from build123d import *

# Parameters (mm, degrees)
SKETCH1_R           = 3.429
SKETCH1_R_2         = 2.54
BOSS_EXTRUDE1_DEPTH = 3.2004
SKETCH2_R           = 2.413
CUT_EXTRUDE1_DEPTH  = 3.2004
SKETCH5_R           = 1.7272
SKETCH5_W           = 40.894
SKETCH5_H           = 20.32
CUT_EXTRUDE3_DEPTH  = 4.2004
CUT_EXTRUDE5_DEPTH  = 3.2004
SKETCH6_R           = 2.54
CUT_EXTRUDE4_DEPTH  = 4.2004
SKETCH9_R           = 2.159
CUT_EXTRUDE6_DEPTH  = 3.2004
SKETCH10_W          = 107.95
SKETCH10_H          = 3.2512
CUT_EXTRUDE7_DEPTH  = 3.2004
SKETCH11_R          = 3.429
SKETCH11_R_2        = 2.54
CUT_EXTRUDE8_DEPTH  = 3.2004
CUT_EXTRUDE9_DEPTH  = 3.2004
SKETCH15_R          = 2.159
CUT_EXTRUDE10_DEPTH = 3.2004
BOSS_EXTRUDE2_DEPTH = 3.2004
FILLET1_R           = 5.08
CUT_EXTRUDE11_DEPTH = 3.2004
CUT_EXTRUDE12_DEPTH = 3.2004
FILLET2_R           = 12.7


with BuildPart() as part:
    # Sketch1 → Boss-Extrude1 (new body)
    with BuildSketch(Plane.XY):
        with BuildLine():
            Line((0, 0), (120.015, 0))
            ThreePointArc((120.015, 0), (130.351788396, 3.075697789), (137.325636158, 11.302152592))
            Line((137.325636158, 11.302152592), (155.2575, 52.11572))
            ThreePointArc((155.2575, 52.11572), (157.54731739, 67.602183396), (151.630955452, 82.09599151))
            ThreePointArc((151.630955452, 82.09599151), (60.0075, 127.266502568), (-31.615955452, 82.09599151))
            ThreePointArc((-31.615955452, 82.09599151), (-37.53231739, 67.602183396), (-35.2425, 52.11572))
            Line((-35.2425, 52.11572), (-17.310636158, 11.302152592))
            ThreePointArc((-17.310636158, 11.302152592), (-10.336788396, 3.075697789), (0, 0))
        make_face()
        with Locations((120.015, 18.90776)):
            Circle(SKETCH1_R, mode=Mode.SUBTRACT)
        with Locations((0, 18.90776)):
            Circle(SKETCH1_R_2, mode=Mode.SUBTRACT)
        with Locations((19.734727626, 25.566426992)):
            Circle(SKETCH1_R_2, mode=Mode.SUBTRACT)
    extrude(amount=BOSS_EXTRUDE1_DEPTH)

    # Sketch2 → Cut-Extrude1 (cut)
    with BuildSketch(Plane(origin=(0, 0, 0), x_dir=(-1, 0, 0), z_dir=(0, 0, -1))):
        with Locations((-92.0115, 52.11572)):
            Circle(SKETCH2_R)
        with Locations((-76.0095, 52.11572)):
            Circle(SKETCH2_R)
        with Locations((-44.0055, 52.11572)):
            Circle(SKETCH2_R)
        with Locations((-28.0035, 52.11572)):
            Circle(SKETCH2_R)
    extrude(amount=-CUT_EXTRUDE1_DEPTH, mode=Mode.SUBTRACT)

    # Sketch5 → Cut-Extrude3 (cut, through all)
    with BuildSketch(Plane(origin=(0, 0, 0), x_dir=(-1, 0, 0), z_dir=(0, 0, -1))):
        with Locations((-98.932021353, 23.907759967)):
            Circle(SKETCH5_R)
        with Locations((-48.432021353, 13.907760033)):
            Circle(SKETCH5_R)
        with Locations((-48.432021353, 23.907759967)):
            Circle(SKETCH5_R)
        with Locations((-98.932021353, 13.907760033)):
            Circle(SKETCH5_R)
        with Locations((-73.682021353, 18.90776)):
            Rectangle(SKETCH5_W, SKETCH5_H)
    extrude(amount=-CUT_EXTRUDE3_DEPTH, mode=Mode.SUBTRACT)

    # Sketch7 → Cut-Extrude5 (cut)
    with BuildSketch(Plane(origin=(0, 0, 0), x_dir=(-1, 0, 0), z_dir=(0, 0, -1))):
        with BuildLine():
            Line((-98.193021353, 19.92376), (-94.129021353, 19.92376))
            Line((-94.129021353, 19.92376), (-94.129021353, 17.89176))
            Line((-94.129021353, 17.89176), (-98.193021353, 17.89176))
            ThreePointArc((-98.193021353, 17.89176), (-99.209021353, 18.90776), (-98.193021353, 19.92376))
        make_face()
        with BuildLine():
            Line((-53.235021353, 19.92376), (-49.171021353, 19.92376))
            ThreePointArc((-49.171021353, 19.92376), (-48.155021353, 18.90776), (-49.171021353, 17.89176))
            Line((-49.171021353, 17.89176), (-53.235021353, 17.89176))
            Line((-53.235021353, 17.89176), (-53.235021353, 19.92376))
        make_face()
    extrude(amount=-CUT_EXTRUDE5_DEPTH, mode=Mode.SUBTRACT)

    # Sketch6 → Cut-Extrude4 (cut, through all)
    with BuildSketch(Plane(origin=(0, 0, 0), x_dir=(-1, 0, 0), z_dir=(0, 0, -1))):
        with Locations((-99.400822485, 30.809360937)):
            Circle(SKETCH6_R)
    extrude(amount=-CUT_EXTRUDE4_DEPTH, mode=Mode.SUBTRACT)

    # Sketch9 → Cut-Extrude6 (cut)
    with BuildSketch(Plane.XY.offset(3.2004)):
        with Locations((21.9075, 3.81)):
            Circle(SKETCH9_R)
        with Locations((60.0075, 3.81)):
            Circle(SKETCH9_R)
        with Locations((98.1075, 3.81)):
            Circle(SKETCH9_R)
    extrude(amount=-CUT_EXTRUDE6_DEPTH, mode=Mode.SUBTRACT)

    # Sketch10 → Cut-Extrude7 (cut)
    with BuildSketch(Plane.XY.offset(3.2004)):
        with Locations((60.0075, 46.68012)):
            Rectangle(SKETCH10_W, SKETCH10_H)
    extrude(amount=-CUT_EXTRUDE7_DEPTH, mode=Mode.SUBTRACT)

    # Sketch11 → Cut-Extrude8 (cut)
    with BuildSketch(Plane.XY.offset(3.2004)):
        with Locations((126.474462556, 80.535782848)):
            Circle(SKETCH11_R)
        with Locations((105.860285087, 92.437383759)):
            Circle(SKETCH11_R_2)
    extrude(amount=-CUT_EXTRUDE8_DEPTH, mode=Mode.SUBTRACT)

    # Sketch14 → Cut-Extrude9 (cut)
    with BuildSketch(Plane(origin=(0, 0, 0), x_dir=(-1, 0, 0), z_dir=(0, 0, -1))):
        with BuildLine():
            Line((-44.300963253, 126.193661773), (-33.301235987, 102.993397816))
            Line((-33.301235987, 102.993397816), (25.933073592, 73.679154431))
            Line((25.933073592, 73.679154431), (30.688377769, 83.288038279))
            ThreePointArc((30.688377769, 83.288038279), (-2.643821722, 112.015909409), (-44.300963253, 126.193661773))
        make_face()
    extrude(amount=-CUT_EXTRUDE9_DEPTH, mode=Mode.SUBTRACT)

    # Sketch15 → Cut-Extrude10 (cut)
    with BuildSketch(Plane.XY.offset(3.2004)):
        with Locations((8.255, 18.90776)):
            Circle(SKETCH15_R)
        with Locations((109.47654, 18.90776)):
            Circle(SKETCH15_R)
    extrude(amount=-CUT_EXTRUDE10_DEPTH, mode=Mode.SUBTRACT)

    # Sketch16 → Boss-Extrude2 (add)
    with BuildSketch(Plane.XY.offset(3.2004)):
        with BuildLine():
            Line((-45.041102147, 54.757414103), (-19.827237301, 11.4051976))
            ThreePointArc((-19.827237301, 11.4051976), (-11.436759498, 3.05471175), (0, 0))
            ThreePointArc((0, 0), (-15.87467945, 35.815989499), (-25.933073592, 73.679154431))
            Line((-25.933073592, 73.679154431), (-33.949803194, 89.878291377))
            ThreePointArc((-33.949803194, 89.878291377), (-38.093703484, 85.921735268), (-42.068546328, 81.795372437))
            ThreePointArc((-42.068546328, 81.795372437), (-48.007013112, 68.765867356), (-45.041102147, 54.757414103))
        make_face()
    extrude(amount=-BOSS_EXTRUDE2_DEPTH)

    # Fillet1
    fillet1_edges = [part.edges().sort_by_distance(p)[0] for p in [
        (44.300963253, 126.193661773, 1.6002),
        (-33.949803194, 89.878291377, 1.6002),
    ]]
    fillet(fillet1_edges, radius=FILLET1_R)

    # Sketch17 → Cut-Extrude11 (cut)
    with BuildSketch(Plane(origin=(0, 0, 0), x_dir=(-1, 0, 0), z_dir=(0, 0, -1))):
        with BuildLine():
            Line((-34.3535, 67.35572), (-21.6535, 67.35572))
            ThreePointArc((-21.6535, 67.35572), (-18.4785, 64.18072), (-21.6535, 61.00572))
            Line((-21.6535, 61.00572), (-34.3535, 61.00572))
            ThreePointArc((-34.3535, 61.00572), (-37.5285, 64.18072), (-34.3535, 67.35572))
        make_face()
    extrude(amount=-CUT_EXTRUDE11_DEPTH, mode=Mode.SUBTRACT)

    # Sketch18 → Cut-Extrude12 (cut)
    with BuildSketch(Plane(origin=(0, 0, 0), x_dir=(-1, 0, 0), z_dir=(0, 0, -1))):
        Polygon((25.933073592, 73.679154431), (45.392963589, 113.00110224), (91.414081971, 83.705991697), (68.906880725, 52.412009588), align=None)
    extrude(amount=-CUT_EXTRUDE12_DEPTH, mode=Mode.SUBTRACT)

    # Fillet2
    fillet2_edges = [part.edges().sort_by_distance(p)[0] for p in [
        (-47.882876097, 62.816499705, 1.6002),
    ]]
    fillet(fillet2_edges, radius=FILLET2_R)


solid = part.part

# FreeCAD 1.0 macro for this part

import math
import FreeCAD as App
import Part
import Sketcher
Q = App.Units.Quantity


def edges_at(feature, points):
    """Names of the edges that pass closest to the given points."""
    edges = feature.Shape.Edges
    near = lambda p: min(range(len(edges)), key=lambda i: edges[i].distToShape(Part.Vertex(*p))[0])
    return sorted({f"Edge{near(p) + 1}" for p in points})


def add_polygon(sketch, points):
    """Adds a closed chain of lines whose ends are joined by coincident constraints."""
    first, n = sketch.GeometryCount, len(points)
    for a, b in zip(points, points[1:] + points[:1]):
        sketch.addGeometry(Part.LineSegment(App.Vector(*a, 0), App.Vector(*b, 0)), False)
    for i in range(n):
        sketch.addConstraint(Sketcher.Constraint("Coincident", first + i, 2, first + (i + 1) % n, 1))

doc = App.newDocument("Part")
body = doc.addObject("PartDesign::Body", "Body")

sketch1 = doc.addObject("Sketcher::SketchObject", "Sketch")
body.addObject(sketch1)
sketch1.AttachmentSupport = (doc.XY_Plane, [""])
sketch1.MapMode = "FlatFace"
sketch1.addGeometry([
    Part.LineSegment(App.Vector(0, 0, 0), App.Vector(120, 0, 0)),
    Part.ArcOfCircle(Part.Circle(App.Vector(120, 18.9, 0), App.Vector(0, 0, 1), 18.9), math.radians(-90), math.radians(-24)),
    Part.LineSegment(App.Vector(137.3, 11.3, 0), App.Vector(155.3, 52.1, 0)),
    Part.ArcOfCircle(Part.Circle(App.Vector(128.1, 64, 0), App.Vector(0, 0, 1), 29.6), math.radians(-24), math.radians(38)),
    Part.ArcOfCircle(Part.Circle(App.Vector(60, 11.8, 0), App.Vector(0, 0, 1), 115.5), math.radians(38), math.radians(142)),
    Part.ArcOfCircle(Part.Circle(App.Vector(-8.1, 64, 0), App.Vector(0, 0, 1), 29.6), math.radians(142), math.radians(204)),
    Part.LineSegment(App.Vector(-35.2, 52.1, 0), App.Vector(-17.3, 11.3, 0)),
    Part.ArcOfCircle(Part.Circle(App.Vector(0, 18.9, 0), App.Vector(0, 0, 1), 18.9), math.radians(-156), math.radians(-90)),
    Part.Circle(App.Vector(0, 18.9, 0), App.Vector(0, 0, 1), 2.5),
    Part.Circle(App.Vector(120, 18.9, 0), App.Vector(0, 0, 1), 3.4),
    Part.Circle(App.Vector(19.7, 25.6, 0), App.Vector(0, 0, 1), 2.5),
], False)
sketch1.addConstraint([
    Sketcher.Constraint("Tangent", 0, 2, 1, 1),
    Sketcher.Constraint("Tangent", 1, 2, 2, 1),
    Sketcher.Constraint("Tangent", 2, 2, 3, 1),
    Sketcher.Constraint("Tangent", 3, 2, 4, 1),
    Sketcher.Constraint("Tangent", 4, 2, 5, 1),
    Sketcher.Constraint("Tangent", 5, 2, 6, 1),
    Sketcher.Constraint("Tangent", 6, 2, 7, 1),
    Sketcher.Constraint("Tangent", 7, 2, 0, 1),
    Sketcher.Constraint("Horizontal", 0),
    Sketcher.Constraint("Coincident", 7, 2, -1, 1),
    Sketcher.Constraint("Coincident", 8, 3, 7, 3),
    Sketcher.Constraint("Coincident", 9, 3, 1, 3),
    Sketcher.Constraint("Equal", 3, 5),
    Sketcher.Constraint("Equal", 1, 7),
    Sketcher.Constraint("Equal", 8, 10),
    Sketcher.Constraint("Horizontal", 3, 3, 5, 3),
    Sketcher.Constraint("Horizontal", 2, 2, 5, 2),
    Sketcher.Constraint("Diameter", 8, Q("0.2 in")),
    Sketcher.Constraint("Diameter", 9, Q("0.27 in")),
    Sketcher.Constraint("Radius", 1, Q("0.7444 in")),
    Sketcher.Constraint("DistanceX", 0, 1, 0, 2, Q("4.725 in")),
    Sketcher.Constraint("Radius", 3, 29.648419),
    Sketcher.Constraint("Radius", 4, 115.509349),
    Sketcher.Constraint("DistanceX", -1, 1, 2, 2, Q("6.1125 in")),
    Sketcher.Constraint("DistanceY", -1, 1, 2, 2, Q("2.0518 in")),
    Sketcher.Constraint("DistanceY", 10, 3, 5, 3, 38.475308),
    Sketcher.Constraint("DistanceX", -1, 1, 10, 3, 19.734728),
])
pad1 = doc.addObject("PartDesign::Pad", "Pad")
body.addObject(pad1)
pad1.Profile = sketch1
pad1.Length = Q("0.126 in")

sketch2 = doc.addObject("Sketcher::SketchObject", "Sketch001")
body.addObject(sketch2)
sketch2.AttachmentSupport = (doc.XY_Plane, [""])
sketch2.MapMode = "FlatFace"
sketch2.addGeometry([
    Part.Circle(App.Vector(92, 52.1, 0), App.Vector(0, 0, 1), 2.4),
    Part.Circle(App.Vector(76, 52.1, 0), App.Vector(0, 0, 1), 2.4),
    Part.Circle(App.Vector(44, 52.1, 0), App.Vector(0, 0, 1), 2.4),
    Part.Circle(App.Vector(28, 52.1, 0), App.Vector(0, 0, 1), 2.4),
], False)
sketch2.addConstraint([
    Sketcher.Constraint("Equal", 0, 1),
    Sketcher.Constraint("Equal", 1, 2),
    Sketcher.Constraint("Equal", 2, 3),
    Sketcher.Constraint("Horizontal", 0, 3, 1, 3),
    Sketcher.Constraint("Horizontal", 1, 3, 2, 3),
    Sketcher.Constraint("Horizontal", 2, 3, 3, 3),
    Sketcher.Constraint("Diameter", 0, Q("0.19 in")),
    Sketcher.Constraint("DistanceX", 1, 3, 0, 3, Q("0.63 in")),
    Sketcher.Constraint("DistanceX", 2, 3, 1, 3, Q("1.26 in")),
    Sketcher.Constraint("DistanceX", 3, 3, 2, 3, Q("0.63 in")),
    Sketcher.Constraint("DistanceX", -1, 1, 0, 3, Q("3.6225 in")),
    Sketcher.Constraint("DistanceY", -1, 1, 0, 3, Q("2.0518 in")),
])
pocket1 = doc.addObject("PartDesign::Pocket", "Pocket")
body.addObject(pocket1)
pocket1.Profile = sketch2
pocket1.Length = Q("0.126 in")
pocket1.Reversed = True

sketch3 = doc.addObject("Sketcher::SketchObject", "Sketch002")
body.addObject(sketch3)
sketch3.AttachmentSupport = (doc.XY_Plane, [""])
sketch3.MapMode = "FlatFace"
sketch3.addGeometry(Part.Circle(App.Vector(98.9, 23.9, 0), App.Vector(0, 0, 1), 1.7), False)
sketch3.addGeometry(Part.Circle(App.Vector(48.4, 13.9, 0), App.Vector(0, 0, 1), 1.7), False)
sketch3.addGeometry(Part.Circle(App.Vector(48.4, 23.9, 0), App.Vector(0, 0, 1), 1.7), False)
sketch3.addGeometry(Part.Circle(App.Vector(98.9, 13.9, 0), App.Vector(0, 0, 1), 1.7), False)
add_polygon(sketch3, [(94.1, 29.1), (94.1, 8.7), (53.2, 8.7), (53.2, 29.1)])
sketch3.addConstraint([
    Sketcher.Constraint("Vertical", 4),
    Sketcher.Constraint("Horizontal", 5),
    Sketcher.Constraint("Vertical", 6),
    Sketcher.Constraint("Horizontal", 7),
    Sketcher.Constraint("Equal", 0, 1),
    Sketcher.Constraint("Equal", 1, 2),
    Sketcher.Constraint("Equal", 2, 3),
    Sketcher.Constraint("Horizontal", 0, 3, 2, 3),
    Sketcher.Constraint("Horizontal", 1, 3, 3, 3),
    Sketcher.Constraint("Vertical", 1, 3, 2, 3),
    Sketcher.Constraint("Vertical", 0, 3, 3, 3),
    Sketcher.Constraint("Diameter", 0, Q("0.136 in")),
    Sketcher.Constraint("DistanceY", 4, 2, 4, 1, Q("0.8 in")),
    Sketcher.Constraint("DistanceX", 5, 2, 5, 1, Q("1.61 in")),
    Sketcher.Constraint("DistanceY", -1, 1, 4, 2, Q("0.3444 in")),
    Sketcher.Constraint("DistanceX", 1, 3, 0, 3, 50.5),
    Sketcher.Constraint("DistanceY", 1, 3, 0, 3, 10.0),
    Sketcher.Constraint("DistanceX", 4, 2, 3, 3, 4.803),
    Sketcher.Constraint("DistanceY", 4, 2, 3, 3, 5.16),
    Sketcher.Constraint("DistanceX", -1, 1, 0, 3, 98.932021),
])
pocket2 = doc.addObject("PartDesign::Pocket", "Pocket001")
body.addObject(pocket2)
pocket2.Profile = sketch3
pocket2.Type = "ThroughAll"
pocket2.Reversed = True

sketch4 = doc.addObject("Sketcher::SketchObject", "Sketch003")
body.addObject(sketch4)
sketch4.AttachmentSupport = (doc.XY_Plane, [""])
sketch4.MapMode = "FlatFace"
sketch4.addGeometry([
    Part.LineSegment(App.Vector(94.1, 19.9, 0), App.Vector(98.2, 19.9, 0)),
    Part.ArcOfCircle(Part.Circle(App.Vector(98.2, 18.9, 0), App.Vector(0, 0, 1), 1), math.radians(-90), math.radians(90)),
    Part.LineSegment(App.Vector(98.2, 17.9, 0), App.Vector(94.1, 17.9, 0)),
    Part.LineSegment(App.Vector(94.1, 17.9, 0), App.Vector(94.1, 19.9, 0)),
    Part.LineSegment(App.Vector(49.2, 19.9, 0), App.Vector(53.2, 19.9, 0)),
    Part.LineSegment(App.Vector(53.2, 19.9, 0), App.Vector(53.2, 17.9, 0)),
    Part.LineSegment(App.Vector(53.2, 17.9, 0), App.Vector(49.2, 17.9, 0)),
    Part.ArcOfCircle(Part.Circle(App.Vector(49.2, 18.9, 0), App.Vector(0, 0, 1), 1), math.radians(90), math.radians(270)),
], False)
sketch4.addConstraint([
    Sketcher.Constraint("Tangent", 0, 2, 1, 2),
    Sketcher.Constraint("Tangent", 1, 1, 2, 1),
    Sketcher.Constraint("Coincident", 2, 2, 3, 1),
    Sketcher.Constraint("Coincident", 3, 2, 0, 1),
    Sketcher.Constraint("Coincident", 4, 2, 5, 1),
    Sketcher.Constraint("Coincident", 5, 2, 6, 1),
    Sketcher.Constraint("Tangent", 6, 2, 7, 2),
    Sketcher.Constraint("Tangent", 7, 1, 4, 1),
    Sketcher.Constraint("Horizontal", 0),
    Sketcher.Constraint("Horizontal", 2),
    Sketcher.Constraint("Vertical", 3),
    Sketcher.Constraint("Horizontal", 4),
    Sketcher.Constraint("Vertical", 5),
    Sketcher.Constraint("Horizontal", 6),
    Sketcher.Constraint("Equal", 1, 7),
    Sketcher.Constraint("Horizontal", 1, 3, 7, 3),
    Sketcher.Constraint("Equal", 2, 4),
    Sketcher.Constraint("Radius", 1, Q("0.04 in")),
    Sketcher.Constraint("DistanceX", 0, 1, 0, 2, Q("0.16 in")),
    Sketcher.Constraint("DistanceX", 7, 3, 1, 3, Q("1.93 in")),
    Sketcher.Constraint("DistanceY", -1, 1, 1, 3, Q("0.7444 in")),
    Sketcher.Constraint("DistanceX", -1, 1, 1, 3, 98.193021),
])
pocket3 = doc.addObject("PartDesign::Pocket", "Pocket002")
body.addObject(pocket3)
pocket3.Profile = sketch4
pocket3.Length = Q("0.126 in")
pocket3.Reversed = True

sketch5 = doc.addObject("Sketcher::SketchObject", "Sketch004")
body.addObject(sketch5)
sketch5.AttachmentSupport = (doc.XY_Plane, [""])
sketch5.MapMode = "FlatFace"
sketch5.addGeometry(Part.Circle(App.Vector(99.4, 30.8, 0), App.Vector(0, 0, 1), 2.5), False)
sketch5.addConstraint([
    Sketcher.Constraint("Diameter", 0, Q("0.2 in")),
    Sketcher.Constraint("DistanceY", -1, 1, 0, 3, 30.809361),
    Sketcher.Constraint("DistanceX", -1, 1, 0, 3, 99.400822),
])
pocket4 = doc.addObject("PartDesign::Pocket", "Pocket003")
body.addObject(pocket4)
pocket4.Profile = sketch5
pocket4.Type = "ThroughAll"
pocket4.Reversed = True

sketch6 = doc.addObject("Sketcher::SketchObject", "Sketch005")
body.addObject(sketch6)
sketch6.AttachmentSupport = (doc.XY_Plane, [""])
sketch6.MapMode = "FlatFace"
sketch6.AttachmentOffset = App.Placement(App.Vector(0, 0, 0.126 * 25.4), App.Rotation())
sketch6.addGeometry([
    Part.Circle(App.Vector(21.9, 3.8, 0), App.Vector(0, 0, 1), 2.2),
    Part.Circle(App.Vector(60, 3.8, 0), App.Vector(0, 0, 1), 2.2),
    Part.Circle(App.Vector(98.1, 3.8, 0), App.Vector(0, 0, 1), 2.2),
], False)
sketch6.addConstraint([
    Sketcher.Constraint("Equal", 0, 1),
    Sketcher.Constraint("Equal", 1, 2),
    Sketcher.Constraint("Horizontal", 0, 3, 1, 3),
    Sketcher.Constraint("Horizontal", 1, 3, 2, 3),
    Sketcher.Constraint("Diameter", 0, Q("0.17 in")),
    Sketcher.Constraint("DistanceX", 0, 3, 2, 3, Q("3 in")),
    Sketcher.Constraint("DistanceX", 0, 3, 1, 3, Q("1.5 in")),
    Sketcher.Constraint("DistanceY", -1, 1, 0, 3, Q("0.15 in")),
    Sketcher.Constraint("DistanceX", -1, 1, 0, 3, Q("0.8625 in")),
])
pocket5 = doc.addObject("PartDesign::Pocket", "Pocket004")
body.addObject(pocket5)
pocket5.Profile = sketch6
pocket5.Length = Q("0.126 in")

sketch7 = doc.addObject("Sketcher::SketchObject", "Sketch006")
body.addObject(sketch7)
sketch7.AttachmentSupport = (doc.XY_Plane, [""])
sketch7.MapMode = "FlatFace"
sketch7.AttachmentOffset = App.Placement(App.Vector(0, 0, 0.126 * 25.4), App.Rotation())
add_polygon(sketch7, [(6, 48.3), (6, 45.1), (114, 45.1), (114, 48.3)])
sketch7.addConstraint([
    Sketcher.Constraint("Vertical", 0),
    Sketcher.Constraint("Horizontal", 1),
    Sketcher.Constraint("Vertical", 2),
    Sketcher.Constraint("Horizontal", 3),
    Sketcher.Constraint("DistanceX", 1, 1, 1, 2, Q("4.25 in")),
    Sketcher.Constraint("DistanceY", 0, 2, 0, 1, Q("0.128 in")),
    Sketcher.Constraint("DistanceX", -1, 1, 0, 2, Q("0.2375 in")),
    Sketcher.Constraint("DistanceY", -1, 1, 0, 2, Q("1.7738 in")),
])
pocket6 = doc.addObject("PartDesign::Pocket", "Pocket005")
body.addObject(pocket6)
pocket6.Profile = sketch7
pocket6.Length = Q("0.126 in")

sketch8 = doc.addObject("Sketcher::SketchObject", "Sketch007")
body.addObject(sketch8)
sketch8.AttachmentSupport = (doc.XY_Plane, [""])
sketch8.MapMode = "FlatFace"
sketch8.AttachmentOffset = App.Placement(App.Vector(0, 0, 0.126 * 25.4), App.Rotation())
sketch8.addGeometry([
    Part.Circle(App.Vector(126.5, 80.5, 0), App.Vector(0, 0, 1), 3.4),
    Part.Circle(App.Vector(105.9, 92.4, 0), App.Vector(0, 0, 1), 2.5),
], False)
sketch8.addConstraint([
    Sketcher.Constraint("Diameter", 1, Q("0.2 in")),
    Sketcher.Constraint("Diameter", 0, Q("0.27 in")),
    Sketcher.Constraint("DistanceY", -1, 1, 0, 3, Q("3.1707001 in")),
    Sketcher.Constraint("DistanceY", 0, 3, 1, 3, 11.901601),
    Sketcher.Constraint("DistanceX", -1, 1, 0, 3, 126.474463),
    Sketcher.Constraint("DistanceX", -1, 1, 1, 3, 105.860285),
])
pocket7 = doc.addObject("PartDesign::Pocket", "Pocket006")
body.addObject(pocket7)
pocket7.Profile = sketch8
pocket7.Length = Q("0.126 in")

sketch9 = doc.addObject("Sketcher::SketchObject", "Sketch008")
body.addObject(sketch9)
sketch9.AttachmentSupport = (doc.XY_Plane, [""])
sketch9.MapMode = "FlatFace"
sketch9.addGeometry([
    Part.LineSegment(App.Vector(44, 126, 0), App.Vector(33, 103, 0)),
    Part.LineSegment(App.Vector(33, 103, 0), App.Vector(-26, 74, 0)),
    Part.LineSegment(App.Vector(-26, 74, 0), App.Vector(-31, 83, 0)),
    Part.ArcOfCircle(Part.Circle(App.Vector(60, 12, 0), App.Vector(0, 0, 1), 116), math.radians(98), math.radians(142)),
], False)
sketch9.addConstraint([
    Sketcher.Constraint("Coincident", 0, 2, 1, 1),
    Sketcher.Constraint("Coincident", 1, 2, 2, 1),
    Sketcher.Constraint("Coincident", 2, 2, 3, 2),
    Sketcher.Constraint("Coincident", 3, 1, 0, 1),
    Sketcher.Constraint("Perpendicular", 1, 2),
    Sketcher.Constraint("Radius", 3, 115.509349),
    Sketcher.Constraint("DistanceX", -1, 1, 3, 3, Q("2.3625 in")),
    Sketcher.Constraint("DistanceY", 3, 3, 1, 2, 61.922001),
    Sketcher.Constraint("Distance", 0, 25.675791),
    Sketcher.Constraint("Distance", 1, 66.091061),
    Sketcher.Constraint("DistanceY", -1, 1, 2, 2, 83.288038),
    Sketcher.Constraint("DistanceY", -1, 1, 3, 1, 126.193662),
    Sketcher.Constraint("DistanceX", 1, 2, 0, 2, 59.23431),
])
pocket8 = doc.addObject("PartDesign::Pocket", "Pocket007")
body.addObject(pocket8)
pocket8.Profile = sketch9
pocket8.Length = Q("0.126 in")
pocket8.Reversed = True

sketch10 = doc.addObject("Sketcher::SketchObject", "Sketch009")
body.addObject(sketch10)
sketch10.AttachmentSupport = (doc.XY_Plane, [""])
sketch10.MapMode = "FlatFace"
sketch10.AttachmentOffset = App.Placement(App.Vector(0, 0, 0.126 * 25.4), App.Rotation())
sketch10.addGeometry([
    Part.Circle(App.Vector(8.3, 18.9, 0), App.Vector(0, 0, 1), 2.2),
    Part.Circle(App.Vector(109.5, 18.9, 0), App.Vector(0, 0, 1), 2.2),
], False)
sketch10.addConstraint([
    Sketcher.Constraint("Equal", 0, 1),
    Sketcher.Constraint("Horizontal", 0, 3, 1, 3),
    Sketcher.Constraint("Diameter", 0, Q("0.17 in")),
    Sketcher.Constraint("DistanceX", -1, 1, 0, 3, Q("0.325 in")),
    Sketcher.Constraint("DistanceY", -1, 1, 0, 3, Q("0.7444 in")),
    Sketcher.Constraint("DistanceX", -1, 1, 1, 3, Q("4.3101 in")),
])
pocket9 = doc.addObject("PartDesign::Pocket", "Pocket008")
body.addObject(pocket9)
pocket9.Profile = sketch10
pocket9.Length = Q("0.126 in")

sketch11 = doc.addObject("Sketcher::SketchObject", "Sketch010")
body.addObject(sketch11)
sketch11.AttachmentSupport = (doc.XY_Plane, [""])
sketch11.MapMode = "FlatFace"
sketch11.AttachmentOffset = App.Placement(App.Vector(0, 0, 0.126 * 25.4), App.Rotation())
sketch11.addGeometry([
    Part.LineSegment(App.Vector(-45.041102, 54.757414, 0), App.Vector(-19.827237, 11.405198, 0)),
    Part.ArcOfCircle(Part.Circle(App.Vector(0, 22.936817, 0), App.Vector(0, 0, 1), 22.936817), math.radians(-149.817504), math.radians(-90)),
    Part.ArcOfCircle(Part.Circle(App.Vector(218.916372, 118.456102, 0), App.Vector(0, 0, 1), 248.910076), math.radians(-169.636527), math.radians(-151.582088)),
    Part.LineSegment(App.Vector(-25.933074, 73.679154, 0), App.Vector(-33.949803, 89.878291, 0)),
    Part.ArcOfCircle(Part.Circle(App.Vector(58.563026, -11.163385, 0), App.Vector(0, 0, 1), 136.996511), math.radians(132.476933), math.radians(137.269689)),
    Part.ArcOfCircle(Part.Circle(App.Vector(-25.255869, 66.264604, 0), App.Vector(0, 0, 1), 22.888226), math.radians(137.269689), math.radians(210.182496)),
], False)
sketch11.addConstraint([
    Sketcher.Constraint("Coincident", 0, 2, 1, 1),
    Sketcher.Constraint("Coincident", 1, 2, 2, 2),
    Sketcher.Constraint("Coincident", 2, 1, 3, 1),
    Sketcher.Constraint("Coincident", 3, 2, 4, 1),
    Sketcher.Constraint("Coincident", 4, 2, 5, 1),
    Sketcher.Constraint("Coincident", 5, 2, 0, 1),
    Sketcher.Constraint("Coincident", 1, 2, -1, 1),
    Sketcher.Constraint("PointOnObject", 1, 3, -2),
    Sketcher.Constraint("Radius", 4, 136.996511),
    Sketcher.Constraint("DistanceX", 0, 2, -1, 1, Q("0.7805999 in")),
    Sketcher.Constraint("Radius", 1, 22.936817),
    Sketcher.Constraint("Radius", 2, 248.910076),
    Sketcher.Constraint("Radius", 5, 22.888226),
    Sketcher.Constraint("DistanceX", 2, 1, 4, 3, 84.4961),
    Sketcher.Constraint("DistanceX", 5, 2, 3, 2, 11.091299),
    Sketcher.Constraint("Distance", 3, 18.074291),
    Sketcher.Constraint("DistanceX", 5, 3, -1, 1, 25.255869),
    Sketcher.Constraint("DistanceY", -1, 1, 3, 2, 89.878291),
    Sketcher.Constraint("DistanceY", 4, 3, 5, 3, 77.427989),
    Sketcher.Constraint("DistanceX", 5, 3, 2, 3, 244.172241),
    Sketcher.Constraint("DistanceY", 4, 2, 3, 2, 8.082919),
])
pad2 = doc.addObject("PartDesign::Pad", "Pad001")
body.addObject(pad2)
pad2.Profile = sketch11
pad2.Length = Q("0.126 in")
pad2.Reversed = True
doc.recompute()

fillet = doc.addObject("PartDesign::Fillet", "Fillet")
body.addObject(fillet)
fillet.Base = (pad2, edges_at(pad2, [(44.301, 126.194, 1.6), (-33.95, 89.878, 1.6)]))
fillet.Radius = Q("0.2 in")

sketch12 = doc.addObject("Sketcher::SketchObject", "Sketch011")
body.addObject(sketch12)
sketch12.AttachmentSupport = (doc.XY_Plane, [""])
sketch12.MapMode = "FlatFace"
sketch12.addGeometry([
    Part.LineSegment(App.Vector(21.7, 67.4, 0), App.Vector(34.4, 67.4, 0)),
    Part.ArcOfCircle(Part.Circle(App.Vector(34.4, 64.2, 0), App.Vector(0, 0, 1), 3.2), math.radians(-90), math.radians(90)),
    Part.LineSegment(App.Vector(34.4, 61, 0), App.Vector(21.7, 61, 0)),
    Part.ArcOfCircle(Part.Circle(App.Vector(21.7, 64.2, 0), App.Vector(0, 0, 1), 3.2), math.radians(90), math.radians(270)),
], False)
sketch12.addConstraint([
    Sketcher.Constraint("Tangent", 0, 2, 1, 2),
    Sketcher.Constraint("Tangent", 1, 1, 2, 1),
    Sketcher.Constraint("Tangent", 2, 2, 3, 2),
    Sketcher.Constraint("Tangent", 3, 1, 0, 1),
    Sketcher.Constraint("Horizontal", 0),
    Sketcher.Constraint("Horizontal", 2),
    Sketcher.Constraint("DistanceX", 0, 1, 0, 2, Q("0.5 in")),
    Sketcher.Constraint("Radius", 1, Q("0.125 in")),
    Sketcher.Constraint("DistanceX", -1, 1, 1, 3, Q("1.3525 in")),
    Sketcher.Constraint("DistanceY", -1, 1, 1, 3, Q("2.5268 in")),
])
pocket10 = doc.addObject("PartDesign::Pocket", "Pocket009")
body.addObject(pocket10)
pocket10.Profile = sketch12
pocket10.Length = Q("0.126 in")
pocket10.Reversed = True

sketch13 = doc.addObject("Sketcher::SketchObject", "Sketch012")
body.addObject(sketch13)
sketch13.AttachmentSupport = (doc.XY_Plane, [""])
sketch13.MapMode = "FlatFace"
add_polygon(sketch13, [(-45, 113), (-26, 74), (-69, 52), (-91, 84)])
sketch13.addConstraint([
    Sketcher.Constraint("Perpendicular", 0, 1),
    Sketcher.Constraint("Distance", 1, 47.948301),
    Sketcher.Constraint("DistanceX", 2, 2, 1, 2, 22.507201),
    Sketcher.Constraint("Distance", 2, 38.54721),
    Sketcher.Constraint("DistanceX", 1, 2, -1, 1, 68.906881),
    Sketcher.Constraint("DistanceY", -1, 1, 1, 2, 52.41201),
    Sketcher.Constraint("DistanceX", 2, 2, 0, 2, 65.481008),
    Sketcher.Constraint("DistanceX", 3, 2, 0, 2, 19.45989),
])
pocket11 = doc.addObject("PartDesign::Pocket", "Pocket010")
body.addObject(pocket11)
pocket11.Profile = sketch13
pocket11.Length = Q("0.126 in")
pocket11.Reversed = True
doc.recompute()

fillet2 = doc.addObject("PartDesign::Fillet", "Fillet001")
body.addObject(fillet2)
fillet2.Base = (pocket11, edges_at(pocket11, [(-47.883, 62.816, 1.6)]))
fillet2.Radius = Q("0.5 in")

doc.recompute()
